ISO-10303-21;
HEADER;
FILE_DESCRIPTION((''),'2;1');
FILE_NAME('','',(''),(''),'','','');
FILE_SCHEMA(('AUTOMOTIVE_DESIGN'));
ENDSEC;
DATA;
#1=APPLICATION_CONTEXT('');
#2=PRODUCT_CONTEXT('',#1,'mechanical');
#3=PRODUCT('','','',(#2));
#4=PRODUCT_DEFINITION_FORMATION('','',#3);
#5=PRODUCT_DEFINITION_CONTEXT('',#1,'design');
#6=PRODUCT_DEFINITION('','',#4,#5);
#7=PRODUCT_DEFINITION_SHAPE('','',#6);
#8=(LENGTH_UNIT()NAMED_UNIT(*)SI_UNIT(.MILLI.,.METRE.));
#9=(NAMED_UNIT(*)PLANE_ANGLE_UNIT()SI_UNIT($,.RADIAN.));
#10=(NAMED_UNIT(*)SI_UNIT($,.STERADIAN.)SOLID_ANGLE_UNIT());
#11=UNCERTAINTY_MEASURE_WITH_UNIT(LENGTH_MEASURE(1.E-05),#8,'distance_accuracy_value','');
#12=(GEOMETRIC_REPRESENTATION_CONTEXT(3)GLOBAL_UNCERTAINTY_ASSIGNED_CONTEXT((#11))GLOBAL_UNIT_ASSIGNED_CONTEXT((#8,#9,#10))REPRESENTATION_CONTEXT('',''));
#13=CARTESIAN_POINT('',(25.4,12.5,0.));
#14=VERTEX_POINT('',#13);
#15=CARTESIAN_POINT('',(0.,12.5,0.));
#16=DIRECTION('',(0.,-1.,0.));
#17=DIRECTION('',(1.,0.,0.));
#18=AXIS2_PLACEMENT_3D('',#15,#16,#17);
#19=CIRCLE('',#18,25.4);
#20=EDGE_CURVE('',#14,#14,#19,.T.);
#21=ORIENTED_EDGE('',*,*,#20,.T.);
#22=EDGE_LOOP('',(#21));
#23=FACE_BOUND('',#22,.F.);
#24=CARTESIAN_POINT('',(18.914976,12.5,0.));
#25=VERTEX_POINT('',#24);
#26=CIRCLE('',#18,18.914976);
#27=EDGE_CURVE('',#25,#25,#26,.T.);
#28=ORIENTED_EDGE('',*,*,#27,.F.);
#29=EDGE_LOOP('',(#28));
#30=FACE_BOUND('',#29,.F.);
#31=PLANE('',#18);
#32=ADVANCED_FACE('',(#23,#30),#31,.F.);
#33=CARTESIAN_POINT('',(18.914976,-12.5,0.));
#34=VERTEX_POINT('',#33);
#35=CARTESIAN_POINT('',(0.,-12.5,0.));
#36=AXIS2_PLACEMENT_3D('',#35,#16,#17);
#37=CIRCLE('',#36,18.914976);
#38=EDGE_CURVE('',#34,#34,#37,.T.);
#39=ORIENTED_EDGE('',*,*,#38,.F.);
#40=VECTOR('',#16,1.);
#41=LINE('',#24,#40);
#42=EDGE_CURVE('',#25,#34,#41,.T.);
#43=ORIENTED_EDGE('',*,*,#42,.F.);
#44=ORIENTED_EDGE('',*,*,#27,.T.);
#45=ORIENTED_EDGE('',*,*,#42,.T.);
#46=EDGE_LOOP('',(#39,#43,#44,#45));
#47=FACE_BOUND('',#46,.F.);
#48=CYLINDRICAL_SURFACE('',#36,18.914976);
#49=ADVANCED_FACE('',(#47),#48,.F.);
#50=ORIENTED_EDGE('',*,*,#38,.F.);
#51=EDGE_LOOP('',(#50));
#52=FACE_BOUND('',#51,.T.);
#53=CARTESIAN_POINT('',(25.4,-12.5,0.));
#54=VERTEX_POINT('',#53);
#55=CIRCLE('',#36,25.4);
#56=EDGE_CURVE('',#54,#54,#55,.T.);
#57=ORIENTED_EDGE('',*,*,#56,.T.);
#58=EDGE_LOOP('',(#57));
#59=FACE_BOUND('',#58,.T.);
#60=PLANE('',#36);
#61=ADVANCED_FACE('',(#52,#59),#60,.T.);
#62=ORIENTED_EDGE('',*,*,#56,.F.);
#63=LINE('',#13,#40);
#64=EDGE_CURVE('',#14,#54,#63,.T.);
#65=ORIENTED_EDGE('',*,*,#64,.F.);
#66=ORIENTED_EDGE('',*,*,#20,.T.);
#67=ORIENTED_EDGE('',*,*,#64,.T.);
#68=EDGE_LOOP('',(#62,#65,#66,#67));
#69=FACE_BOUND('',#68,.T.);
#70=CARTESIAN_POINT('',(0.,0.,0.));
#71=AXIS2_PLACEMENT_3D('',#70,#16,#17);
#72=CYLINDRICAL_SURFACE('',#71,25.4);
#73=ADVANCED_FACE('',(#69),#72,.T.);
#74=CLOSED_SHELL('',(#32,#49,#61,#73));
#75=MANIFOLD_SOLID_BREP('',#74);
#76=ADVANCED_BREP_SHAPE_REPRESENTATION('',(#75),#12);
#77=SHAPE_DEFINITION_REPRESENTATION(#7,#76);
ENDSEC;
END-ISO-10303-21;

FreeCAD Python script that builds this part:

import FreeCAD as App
import Part
import Sketcher

V = App.Vector

doc = App.newDocument("Part")
params = doc.addObject("Spreadsheet::Sheet", "Params")
for row, (alias, value) in enumerate([
    ("sketch1_diameter", "50.8 mm"),
    ("pad1_length", "25 mm"),
    ("pocket1_length", "50 mm"),
], start=1):
    params.set(f"A{row}", alias)
    params.set(f"B{row}", "=" + value)
    params.setAlias(f"B{row}", alias)

body = doc.addObject("PartDesign::Body", "Body")

sketch1 = doc.addObject("Sketcher::SketchObject", "Sketch")
body.addObject(sketch1)
sketch1.AttachmentSupport = (doc.XZ_Plane, [""])
sketch1.MapMode = "FlatFace"
sketch1.addGeometry(Part.Circle(V(0, 0, 0), V(0, 0, 1), 25), False)
sketch1.addConstraint([
    Sketcher.Constraint("Coincident", 0, 3, -1, 1),
    Sketcher.Constraint("Diameter", 0, 50.8),
])
sketch1.setExpression("Constraints[1]", "Params.sketch1_diameter")
pad1 = doc.addObject("PartDesign::Pad", "Pad")
body.addObject(pad1)
pad1.Profile = sketch1
pad1.setExpression("Length", "Params.pad1_length")
pad1.Midplane = True

sketch2 = doc.addObject("Sketcher::SketchObject", "Sketch001")
body.addObject(sketch2)
sketch2.AttachmentSupport = (doc.XZ_Plane, [""])
sketch2.MapMode = "FlatFace"
sketch2.AttachmentOffset = App.Placement(V(0, 0, 12.5), App.Rotation())
sketch2.addGeometry(Part.Circle(V(0, 0, 0), V(0, 0, 1), 19), False)
sketch2.addConstraint([
    Sketcher.Constraint("Coincident", 0, 3, -1, 1),
    Sketcher.Constraint("Diameter", 0, 37.829953),
])
pocket1 = doc.addObject("PartDesign::Pocket", "Pocket")
body.addObject(pocket1)
pocket1.Profile = sketch2
pocket1.setExpression("Length", "Params.pocket1_length")
pocket1.Midplane = True

doc.recompute()
